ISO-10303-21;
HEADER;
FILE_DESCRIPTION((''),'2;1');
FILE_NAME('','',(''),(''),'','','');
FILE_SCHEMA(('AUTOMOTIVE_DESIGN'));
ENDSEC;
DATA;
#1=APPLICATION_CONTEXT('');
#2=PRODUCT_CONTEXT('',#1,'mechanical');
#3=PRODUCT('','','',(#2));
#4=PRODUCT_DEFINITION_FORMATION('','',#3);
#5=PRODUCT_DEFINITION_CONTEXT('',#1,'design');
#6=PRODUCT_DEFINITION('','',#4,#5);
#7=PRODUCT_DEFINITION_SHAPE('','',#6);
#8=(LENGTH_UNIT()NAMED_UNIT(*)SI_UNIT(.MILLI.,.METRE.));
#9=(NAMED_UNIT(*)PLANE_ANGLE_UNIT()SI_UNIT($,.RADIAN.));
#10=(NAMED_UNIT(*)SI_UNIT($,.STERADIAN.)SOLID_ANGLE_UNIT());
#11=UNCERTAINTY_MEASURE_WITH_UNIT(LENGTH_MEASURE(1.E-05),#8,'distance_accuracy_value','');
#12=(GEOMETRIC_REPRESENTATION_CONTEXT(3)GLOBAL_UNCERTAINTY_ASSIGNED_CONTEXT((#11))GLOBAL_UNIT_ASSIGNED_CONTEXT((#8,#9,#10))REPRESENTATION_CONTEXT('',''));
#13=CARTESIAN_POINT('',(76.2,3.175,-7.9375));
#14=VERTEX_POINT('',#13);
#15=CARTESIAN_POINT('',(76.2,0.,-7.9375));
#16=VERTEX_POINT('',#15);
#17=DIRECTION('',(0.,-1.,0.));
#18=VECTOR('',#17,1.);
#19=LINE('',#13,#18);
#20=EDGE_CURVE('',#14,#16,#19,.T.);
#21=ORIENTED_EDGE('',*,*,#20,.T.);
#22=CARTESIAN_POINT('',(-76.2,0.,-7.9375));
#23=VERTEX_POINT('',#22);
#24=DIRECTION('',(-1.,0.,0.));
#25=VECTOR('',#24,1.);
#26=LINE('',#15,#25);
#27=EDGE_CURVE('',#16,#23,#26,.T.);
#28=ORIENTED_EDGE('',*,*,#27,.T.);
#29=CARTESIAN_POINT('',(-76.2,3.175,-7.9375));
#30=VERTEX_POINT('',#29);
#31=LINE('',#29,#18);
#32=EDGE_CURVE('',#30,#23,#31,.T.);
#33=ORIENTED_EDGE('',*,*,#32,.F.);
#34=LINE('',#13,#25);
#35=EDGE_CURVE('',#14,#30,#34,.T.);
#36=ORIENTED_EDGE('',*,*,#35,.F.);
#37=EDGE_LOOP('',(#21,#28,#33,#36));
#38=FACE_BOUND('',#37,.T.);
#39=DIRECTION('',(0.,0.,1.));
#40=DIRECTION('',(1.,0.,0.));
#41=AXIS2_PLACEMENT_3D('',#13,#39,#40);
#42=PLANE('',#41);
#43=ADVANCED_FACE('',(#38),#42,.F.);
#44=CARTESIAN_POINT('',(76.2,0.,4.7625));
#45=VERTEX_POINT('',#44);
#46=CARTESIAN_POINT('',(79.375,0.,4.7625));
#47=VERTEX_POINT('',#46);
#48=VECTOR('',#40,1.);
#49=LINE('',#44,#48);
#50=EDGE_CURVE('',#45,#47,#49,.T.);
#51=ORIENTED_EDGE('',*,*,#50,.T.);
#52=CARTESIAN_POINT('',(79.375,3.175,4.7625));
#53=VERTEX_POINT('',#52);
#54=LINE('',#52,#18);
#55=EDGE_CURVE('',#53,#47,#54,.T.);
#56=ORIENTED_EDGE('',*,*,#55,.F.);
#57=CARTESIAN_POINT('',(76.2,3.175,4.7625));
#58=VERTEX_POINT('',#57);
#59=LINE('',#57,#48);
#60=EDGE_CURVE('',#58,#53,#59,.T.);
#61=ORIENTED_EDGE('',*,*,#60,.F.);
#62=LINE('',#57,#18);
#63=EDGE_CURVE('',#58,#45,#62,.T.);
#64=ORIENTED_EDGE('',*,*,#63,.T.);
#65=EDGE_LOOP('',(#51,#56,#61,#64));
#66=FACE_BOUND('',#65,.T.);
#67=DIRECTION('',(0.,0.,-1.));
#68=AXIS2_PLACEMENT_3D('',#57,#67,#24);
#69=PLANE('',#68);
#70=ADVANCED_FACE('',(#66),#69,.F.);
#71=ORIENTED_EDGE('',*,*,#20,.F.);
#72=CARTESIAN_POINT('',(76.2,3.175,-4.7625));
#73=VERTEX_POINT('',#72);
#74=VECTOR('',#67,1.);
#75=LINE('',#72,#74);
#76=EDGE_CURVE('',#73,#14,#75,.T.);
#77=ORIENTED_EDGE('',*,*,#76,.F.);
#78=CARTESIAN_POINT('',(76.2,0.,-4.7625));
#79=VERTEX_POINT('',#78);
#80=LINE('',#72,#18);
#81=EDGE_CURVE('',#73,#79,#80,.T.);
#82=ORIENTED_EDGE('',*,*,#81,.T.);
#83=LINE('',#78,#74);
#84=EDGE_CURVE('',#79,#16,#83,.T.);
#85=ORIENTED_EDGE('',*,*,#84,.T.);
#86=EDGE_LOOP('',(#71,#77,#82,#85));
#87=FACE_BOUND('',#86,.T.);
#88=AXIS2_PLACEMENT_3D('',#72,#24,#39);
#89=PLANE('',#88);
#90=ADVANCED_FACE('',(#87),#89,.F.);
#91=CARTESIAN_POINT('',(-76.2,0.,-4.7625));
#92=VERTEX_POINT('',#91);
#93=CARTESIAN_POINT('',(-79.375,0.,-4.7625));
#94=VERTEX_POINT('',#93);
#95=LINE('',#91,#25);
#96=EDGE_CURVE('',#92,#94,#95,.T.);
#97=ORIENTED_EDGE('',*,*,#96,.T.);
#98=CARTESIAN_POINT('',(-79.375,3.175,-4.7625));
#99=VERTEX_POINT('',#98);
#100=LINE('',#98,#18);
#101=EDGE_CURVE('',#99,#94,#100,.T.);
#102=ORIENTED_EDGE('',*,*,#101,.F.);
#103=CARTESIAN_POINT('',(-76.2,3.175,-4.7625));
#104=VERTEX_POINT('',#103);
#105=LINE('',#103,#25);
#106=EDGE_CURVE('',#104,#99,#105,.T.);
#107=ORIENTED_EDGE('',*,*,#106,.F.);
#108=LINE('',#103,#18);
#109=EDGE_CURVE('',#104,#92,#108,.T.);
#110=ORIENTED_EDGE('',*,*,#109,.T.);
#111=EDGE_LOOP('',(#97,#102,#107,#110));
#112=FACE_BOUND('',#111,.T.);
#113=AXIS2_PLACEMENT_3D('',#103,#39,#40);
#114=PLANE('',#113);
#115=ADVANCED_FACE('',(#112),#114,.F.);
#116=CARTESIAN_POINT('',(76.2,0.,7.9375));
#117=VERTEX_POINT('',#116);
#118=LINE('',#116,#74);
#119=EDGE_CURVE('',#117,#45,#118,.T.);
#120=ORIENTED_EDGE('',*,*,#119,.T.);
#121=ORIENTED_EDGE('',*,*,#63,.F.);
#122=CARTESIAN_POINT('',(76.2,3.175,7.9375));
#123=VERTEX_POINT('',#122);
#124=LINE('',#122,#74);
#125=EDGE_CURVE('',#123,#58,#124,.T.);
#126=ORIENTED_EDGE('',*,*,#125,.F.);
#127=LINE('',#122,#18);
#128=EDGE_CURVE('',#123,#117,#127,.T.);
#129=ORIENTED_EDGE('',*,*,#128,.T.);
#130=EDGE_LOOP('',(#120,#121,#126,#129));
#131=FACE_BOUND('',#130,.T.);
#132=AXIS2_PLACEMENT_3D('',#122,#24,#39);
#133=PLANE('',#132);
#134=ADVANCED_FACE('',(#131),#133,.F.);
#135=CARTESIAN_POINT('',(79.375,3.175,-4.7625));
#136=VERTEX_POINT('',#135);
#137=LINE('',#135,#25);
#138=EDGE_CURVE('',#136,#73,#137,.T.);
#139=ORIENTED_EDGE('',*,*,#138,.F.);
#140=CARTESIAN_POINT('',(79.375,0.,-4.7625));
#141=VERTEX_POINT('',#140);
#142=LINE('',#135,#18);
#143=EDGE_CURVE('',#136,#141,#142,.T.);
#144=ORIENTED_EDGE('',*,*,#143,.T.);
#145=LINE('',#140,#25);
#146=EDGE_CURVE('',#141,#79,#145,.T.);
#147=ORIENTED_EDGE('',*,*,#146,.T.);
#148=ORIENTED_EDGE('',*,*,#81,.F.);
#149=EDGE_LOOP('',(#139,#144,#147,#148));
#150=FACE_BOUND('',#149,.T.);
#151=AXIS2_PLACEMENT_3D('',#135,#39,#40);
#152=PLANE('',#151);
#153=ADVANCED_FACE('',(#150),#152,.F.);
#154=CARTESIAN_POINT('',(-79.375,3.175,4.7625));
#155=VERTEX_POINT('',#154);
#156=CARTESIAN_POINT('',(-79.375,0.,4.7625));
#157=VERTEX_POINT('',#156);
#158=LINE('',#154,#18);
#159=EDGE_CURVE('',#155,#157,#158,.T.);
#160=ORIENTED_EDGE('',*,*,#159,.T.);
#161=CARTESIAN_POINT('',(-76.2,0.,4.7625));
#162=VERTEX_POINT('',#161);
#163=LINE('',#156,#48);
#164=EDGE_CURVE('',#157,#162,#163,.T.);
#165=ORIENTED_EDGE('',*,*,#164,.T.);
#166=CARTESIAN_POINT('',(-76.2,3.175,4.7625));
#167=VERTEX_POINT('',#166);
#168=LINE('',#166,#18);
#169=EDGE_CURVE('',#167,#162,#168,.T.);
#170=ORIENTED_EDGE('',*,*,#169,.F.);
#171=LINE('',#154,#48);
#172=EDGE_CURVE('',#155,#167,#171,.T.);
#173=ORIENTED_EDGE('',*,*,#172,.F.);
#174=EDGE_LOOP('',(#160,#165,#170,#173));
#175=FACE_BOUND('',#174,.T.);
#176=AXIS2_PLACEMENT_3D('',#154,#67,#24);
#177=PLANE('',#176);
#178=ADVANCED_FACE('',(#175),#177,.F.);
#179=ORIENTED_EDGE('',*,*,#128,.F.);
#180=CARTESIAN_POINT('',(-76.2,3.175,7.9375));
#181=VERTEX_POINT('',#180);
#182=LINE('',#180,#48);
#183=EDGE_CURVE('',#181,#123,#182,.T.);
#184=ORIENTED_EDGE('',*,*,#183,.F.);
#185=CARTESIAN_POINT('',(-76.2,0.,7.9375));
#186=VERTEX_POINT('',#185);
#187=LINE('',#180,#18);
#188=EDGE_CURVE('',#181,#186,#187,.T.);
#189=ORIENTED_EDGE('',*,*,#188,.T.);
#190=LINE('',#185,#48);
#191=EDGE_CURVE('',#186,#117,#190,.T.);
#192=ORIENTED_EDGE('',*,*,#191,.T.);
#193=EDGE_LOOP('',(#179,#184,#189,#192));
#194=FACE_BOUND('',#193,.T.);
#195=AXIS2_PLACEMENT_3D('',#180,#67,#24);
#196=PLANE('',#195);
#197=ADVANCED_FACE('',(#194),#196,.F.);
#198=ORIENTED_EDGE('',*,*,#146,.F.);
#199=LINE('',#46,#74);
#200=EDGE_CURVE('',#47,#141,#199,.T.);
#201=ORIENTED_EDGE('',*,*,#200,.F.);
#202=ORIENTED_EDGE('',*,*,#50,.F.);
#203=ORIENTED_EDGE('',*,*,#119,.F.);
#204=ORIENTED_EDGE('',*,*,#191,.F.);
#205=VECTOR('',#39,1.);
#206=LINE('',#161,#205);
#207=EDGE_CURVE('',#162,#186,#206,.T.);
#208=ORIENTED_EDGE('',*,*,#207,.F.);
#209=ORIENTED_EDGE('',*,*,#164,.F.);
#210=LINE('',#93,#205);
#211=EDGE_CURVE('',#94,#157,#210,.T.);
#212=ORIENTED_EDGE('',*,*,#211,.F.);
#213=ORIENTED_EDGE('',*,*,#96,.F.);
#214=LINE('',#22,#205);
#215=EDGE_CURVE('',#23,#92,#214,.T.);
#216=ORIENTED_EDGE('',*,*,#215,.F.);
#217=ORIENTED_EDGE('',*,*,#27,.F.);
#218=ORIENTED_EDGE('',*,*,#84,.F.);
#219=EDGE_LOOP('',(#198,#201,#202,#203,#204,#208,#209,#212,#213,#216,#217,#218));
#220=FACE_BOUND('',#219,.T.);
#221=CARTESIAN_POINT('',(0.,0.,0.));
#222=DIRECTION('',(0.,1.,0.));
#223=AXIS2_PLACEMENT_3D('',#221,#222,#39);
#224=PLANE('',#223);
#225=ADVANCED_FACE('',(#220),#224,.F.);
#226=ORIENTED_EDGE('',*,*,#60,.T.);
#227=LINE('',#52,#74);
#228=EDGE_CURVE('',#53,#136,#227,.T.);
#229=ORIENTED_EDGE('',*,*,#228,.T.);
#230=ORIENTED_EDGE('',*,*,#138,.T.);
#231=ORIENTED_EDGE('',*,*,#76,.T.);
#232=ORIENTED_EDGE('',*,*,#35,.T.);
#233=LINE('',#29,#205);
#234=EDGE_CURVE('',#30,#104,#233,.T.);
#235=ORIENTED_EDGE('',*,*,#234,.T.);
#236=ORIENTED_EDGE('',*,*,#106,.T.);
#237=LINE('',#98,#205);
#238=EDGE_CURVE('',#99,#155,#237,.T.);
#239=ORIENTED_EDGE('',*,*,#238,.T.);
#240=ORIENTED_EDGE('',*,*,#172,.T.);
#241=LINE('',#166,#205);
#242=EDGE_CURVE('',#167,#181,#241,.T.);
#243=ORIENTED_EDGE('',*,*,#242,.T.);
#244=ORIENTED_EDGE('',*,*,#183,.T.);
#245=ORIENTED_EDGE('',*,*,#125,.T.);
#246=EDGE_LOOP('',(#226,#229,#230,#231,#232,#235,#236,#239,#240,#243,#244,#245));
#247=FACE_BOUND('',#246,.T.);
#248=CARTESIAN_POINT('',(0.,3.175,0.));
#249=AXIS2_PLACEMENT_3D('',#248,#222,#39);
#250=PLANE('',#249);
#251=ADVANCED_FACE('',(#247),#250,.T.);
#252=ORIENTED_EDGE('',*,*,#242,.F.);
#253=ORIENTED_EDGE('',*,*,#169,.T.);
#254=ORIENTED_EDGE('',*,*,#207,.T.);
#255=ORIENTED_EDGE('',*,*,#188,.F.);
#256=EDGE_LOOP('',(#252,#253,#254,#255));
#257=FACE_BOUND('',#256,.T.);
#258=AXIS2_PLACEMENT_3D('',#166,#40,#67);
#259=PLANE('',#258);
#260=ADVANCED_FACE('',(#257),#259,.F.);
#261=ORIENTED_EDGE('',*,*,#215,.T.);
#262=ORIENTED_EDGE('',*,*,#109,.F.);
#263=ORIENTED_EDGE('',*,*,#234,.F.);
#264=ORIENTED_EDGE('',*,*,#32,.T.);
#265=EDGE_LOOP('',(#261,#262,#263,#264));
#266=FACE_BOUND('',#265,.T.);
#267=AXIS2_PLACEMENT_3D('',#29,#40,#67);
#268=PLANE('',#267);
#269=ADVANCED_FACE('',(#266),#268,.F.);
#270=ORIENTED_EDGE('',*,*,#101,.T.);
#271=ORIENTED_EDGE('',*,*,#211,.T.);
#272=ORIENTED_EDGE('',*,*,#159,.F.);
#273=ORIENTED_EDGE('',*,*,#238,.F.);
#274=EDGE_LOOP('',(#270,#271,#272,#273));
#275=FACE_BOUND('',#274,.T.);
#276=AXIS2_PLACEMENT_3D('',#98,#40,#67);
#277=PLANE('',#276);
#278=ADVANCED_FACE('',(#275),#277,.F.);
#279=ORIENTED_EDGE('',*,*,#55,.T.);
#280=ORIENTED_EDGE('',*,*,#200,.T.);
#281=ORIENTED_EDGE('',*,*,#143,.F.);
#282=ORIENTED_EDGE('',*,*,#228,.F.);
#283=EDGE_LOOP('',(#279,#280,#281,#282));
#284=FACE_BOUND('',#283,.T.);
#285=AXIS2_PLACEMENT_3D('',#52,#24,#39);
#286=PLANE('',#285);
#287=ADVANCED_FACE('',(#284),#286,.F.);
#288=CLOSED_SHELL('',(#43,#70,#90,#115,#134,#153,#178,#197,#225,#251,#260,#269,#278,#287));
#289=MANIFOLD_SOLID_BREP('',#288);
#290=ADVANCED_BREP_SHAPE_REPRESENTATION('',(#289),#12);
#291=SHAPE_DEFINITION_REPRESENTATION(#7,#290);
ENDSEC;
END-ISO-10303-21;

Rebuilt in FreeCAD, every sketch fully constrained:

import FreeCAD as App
import Part
import Sketcher
from FreeCAD import Vector
Q = App.Units.Quantity

doc = App.newDocument("Part")
body = doc.addObject("PartDesign::Body", "Body")

sketch1 = body.newObject("Sketcher::SketchObject", "Sketch")
sketch1.AttachmentSupport = (doc.getObject("XZ_Plane"), [""])
sketch1.MapMode = "FlatFace"
sketch1.addGeometry([
    Part.LineSegment(Vector(-76.2, 7.9, 0), Vector(76.2, 7.9, 0)),
    Part.LineSegment(Vector(76.2, 7.9, 0), Vector(76.2, 4.8, 0)),
    Part.LineSegment(Vector(76.2, 4.8, 0), Vector(79.4, 4.8, 0)),
    Part.LineSegment(Vector(79.4, 4.8, 0), Vector(79.4, -4.8, 0)),
    Part.LineSegment(Vector(79.4, -4.8, 0), Vector(76.2, -4.8, 0)),
    Part.LineSegment(Vector(76.2, -4.8, 0), Vector(76.2, -7.9, 0)),
    Part.LineSegment(Vector(76.2, -7.9, 0), Vector(-76.2, -7.9, 0)),
    Part.LineSegment(Vector(-76.2, -7.9, 0), Vector(-76.2, -4.8, 0)),
    Part.LineSegment(Vector(-76.2, -4.8, 0), Vector(-79.4, -4.8, 0)),
    Part.LineSegment(Vector(-79.4, -4.8, 0), Vector(-79.4, 4.8, 0)),
    Part.LineSegment(Vector(-79.4, 4.8, 0), Vector(-76.2, 4.8, 0)),
    Part.LineSegment(Vector(-76.2, 4.8, 0), Vector(-76.2, 7.9, 0)),
], False)
sketch1.addConstraint([
    Sketcher.Constraint("Coincident", 0, 2, 1, 1),
    Sketcher.Constraint("Coincident", 1, 2, 2, 1),
    Sketcher.Constraint("Coincident", 2, 2, 3, 1),
    Sketcher.Constraint("Coincident", 3, 2, 4, 1),
    Sketcher.Constraint("Coincident", 4, 2, 5, 1),
    Sketcher.Constraint("Coincident", 5, 2, 6, 1),
    Sketcher.Constraint("Coincident", 6, 2, 7, 1),
    Sketcher.Constraint("Coincident", 7, 2, 8, 1),
    Sketcher.Constraint("Coincident", 8, 2, 9, 1),
    Sketcher.Constraint("Coincident", 9, 2, 10, 1),
    Sketcher.Constraint("Coincident", 10, 2, 11, 1),
    Sketcher.Constraint("Coincident", 11, 2, 0, 1),
    Sketcher.Constraint("Horizontal", 0),
    Sketcher.Constraint("Vertical", 1),
    Sketcher.Constraint("Horizontal", 2),
    Sketcher.Constraint("Vertical", 3),
    Sketcher.Constraint("Horizontal", 4),
    Sketcher.Constraint("Vertical", 5),
    Sketcher.Constraint("Horizontal", 6),
    Sketcher.Constraint("Vertical", 7),
    Sketcher.Constraint("Horizontal", 8),
    Sketcher.Constraint("Vertical", 9),
    Sketcher.Constraint("Horizontal", 10),
    Sketcher.Constraint("Vertical", 11),
    Sketcher.Constraint("Symmetric", 0, 2, 6, 2, -1, 1),
    Sketcher.Constraint("Symmetric", 2, 2, 8, 2, -1, 1),
    Sketcher.Constraint("Symmetric", 4, 2, 10, 2, -1, 1),
    Sketcher.Constraint("Symmetric", 4, 2, 7, 2, -2),
    Sketcher.Constraint("Equal", 10, 1),
    Sketcher.Constraint("DistanceX", 0, 1, 0, 2, Q("6 in")),
    Sketcher.Constraint("DistanceY", 3, 2, 0, 2, Q("0.5 in")),
    Sketcher.Constraint("DistanceX", 2, 1, 2, 2, Q("0.125 in")),
])
pad1 = body.newObject("PartDesign::Pad", "Pad")
pad1.Profile = sketch1
pad1.Length = Q("0.125 in")
pad1.Reversed = True

doc.recompute()
